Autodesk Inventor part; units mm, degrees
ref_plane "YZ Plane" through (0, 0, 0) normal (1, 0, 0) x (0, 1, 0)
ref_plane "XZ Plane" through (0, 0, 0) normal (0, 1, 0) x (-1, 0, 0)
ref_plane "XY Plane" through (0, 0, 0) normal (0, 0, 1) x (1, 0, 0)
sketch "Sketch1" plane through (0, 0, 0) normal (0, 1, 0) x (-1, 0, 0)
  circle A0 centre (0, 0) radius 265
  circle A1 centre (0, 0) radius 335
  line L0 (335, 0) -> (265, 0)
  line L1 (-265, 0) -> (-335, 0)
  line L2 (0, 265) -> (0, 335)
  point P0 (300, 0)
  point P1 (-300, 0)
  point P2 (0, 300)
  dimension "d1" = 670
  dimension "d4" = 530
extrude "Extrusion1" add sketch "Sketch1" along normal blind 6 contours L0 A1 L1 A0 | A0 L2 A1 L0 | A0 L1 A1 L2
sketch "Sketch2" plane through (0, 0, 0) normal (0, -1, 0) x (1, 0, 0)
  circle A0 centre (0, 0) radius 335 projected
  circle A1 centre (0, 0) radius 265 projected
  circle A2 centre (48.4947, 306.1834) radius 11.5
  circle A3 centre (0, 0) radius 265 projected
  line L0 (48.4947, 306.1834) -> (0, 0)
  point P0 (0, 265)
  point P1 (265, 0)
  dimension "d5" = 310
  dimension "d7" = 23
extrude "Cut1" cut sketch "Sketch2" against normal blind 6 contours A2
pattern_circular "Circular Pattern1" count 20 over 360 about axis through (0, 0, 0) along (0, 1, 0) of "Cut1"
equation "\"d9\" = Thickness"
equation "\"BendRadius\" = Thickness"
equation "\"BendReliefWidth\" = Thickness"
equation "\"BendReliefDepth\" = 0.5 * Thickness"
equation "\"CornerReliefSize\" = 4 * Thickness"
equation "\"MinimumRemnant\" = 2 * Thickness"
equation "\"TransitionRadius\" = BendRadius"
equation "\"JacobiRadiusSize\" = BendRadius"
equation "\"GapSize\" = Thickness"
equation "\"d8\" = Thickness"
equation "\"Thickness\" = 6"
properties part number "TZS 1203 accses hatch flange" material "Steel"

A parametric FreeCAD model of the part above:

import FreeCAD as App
import Part
import Sketcher

V = App.Vector

doc = App.newDocument("Part")
params = doc.addObject("Spreadsheet::Sheet", "Params")
for row, (alias, value) in enumerate([
    ("sketch1_diameter", "670 mm"),
    ("sketch1_diameter2", "530 mm"),
    ("pad1_length", "6 mm"),
    ("sketch2_diameter", "23 mm"),
    ("pocket1_length", "6 mm"),
], start=1):
    params.set(f"A{row}", alias)
    params.set(f"B{row}", "=" + value)
    params.setAlias(f"B{row}", alias)

body = doc.addObject("PartDesign::Body", "Body")

sketch1 = doc.addObject("Sketcher::SketchObject", "Sketch")
body.addObject(sketch1)
sketch1.AttachmentSupport = (doc.XZ_Plane, [""])
sketch1.MapMode = "FlatFace"
sketch1.addGeometry([
    Part.Circle(V(0, 0, 0), V(0, 0, 1), 335),
    Part.Circle(V(0, 0, 0), V(0, 0, 1), 265),
], False)
sketch1.addConstraint([
    Sketcher.Constraint("Coincident", 0, 3, -1, 1),
    Sketcher.Constraint("Coincident", 1, 3, -1, 1),
    Sketcher.Constraint("Diameter", 0, 670.0),
    Sketcher.Constraint("Diameter", 1, 530.0),
])
sketch1.setExpression("Constraints[2]", "Params.sketch1_diameter")
sketch1.setExpression("Constraints[3]", "Params.sketch1_diameter2")
pad1 = doc.addObject("PartDesign::Pad", "Pad")
body.addObject(pad1)
pad1.Profile = sketch1
pad1.setExpression("Length", "Params.pad1_length")
pad1.Reversed = True

sketch2 = doc.addObject("Sketcher::SketchObject", "Sketch001")
body.addObject(sketch2)
sketch2.AttachmentSupport = (doc.XZ_Plane, [""])
sketch2.MapMode = "FlatFace"
sketch2.addGeometry(Part.Circle(V(48.4947, 306.1834, 0), V(0, 0, 1), 11.5), False)
sketch2.addConstraint([
    Sketcher.Constraint("Diameter", 0, 23.0),
    Sketcher.Constraint("DistanceX", -1, 1, 0, 3, 48.4947),
    Sketcher.Constraint("DistanceY", -1, 1, 0, 3, 306.1834),
])
sketch2.setExpression("Constraints[0]", "Params.sketch2_diameter")
pocket1 = doc.addObject("PartDesign::Pocket", "Pocket")
body.addObject(pocket1)
pocket1.Profile = sketch2
pocket1.setExpression("Length", "Params.pocket1_length")
doc.recompute()

polarpattern = doc.addObject("PartDesign::PolarPattern", "PolarPattern")
body.addObject(polarpattern)
polarpattern.Originals = [pocket1]
polarpattern.Axis = (doc.Y_Axis, [""])
polarpattern.Angle = 360
polarpattern.Occurrences = 20
body.Tip = polarpattern

doc.recompute()
